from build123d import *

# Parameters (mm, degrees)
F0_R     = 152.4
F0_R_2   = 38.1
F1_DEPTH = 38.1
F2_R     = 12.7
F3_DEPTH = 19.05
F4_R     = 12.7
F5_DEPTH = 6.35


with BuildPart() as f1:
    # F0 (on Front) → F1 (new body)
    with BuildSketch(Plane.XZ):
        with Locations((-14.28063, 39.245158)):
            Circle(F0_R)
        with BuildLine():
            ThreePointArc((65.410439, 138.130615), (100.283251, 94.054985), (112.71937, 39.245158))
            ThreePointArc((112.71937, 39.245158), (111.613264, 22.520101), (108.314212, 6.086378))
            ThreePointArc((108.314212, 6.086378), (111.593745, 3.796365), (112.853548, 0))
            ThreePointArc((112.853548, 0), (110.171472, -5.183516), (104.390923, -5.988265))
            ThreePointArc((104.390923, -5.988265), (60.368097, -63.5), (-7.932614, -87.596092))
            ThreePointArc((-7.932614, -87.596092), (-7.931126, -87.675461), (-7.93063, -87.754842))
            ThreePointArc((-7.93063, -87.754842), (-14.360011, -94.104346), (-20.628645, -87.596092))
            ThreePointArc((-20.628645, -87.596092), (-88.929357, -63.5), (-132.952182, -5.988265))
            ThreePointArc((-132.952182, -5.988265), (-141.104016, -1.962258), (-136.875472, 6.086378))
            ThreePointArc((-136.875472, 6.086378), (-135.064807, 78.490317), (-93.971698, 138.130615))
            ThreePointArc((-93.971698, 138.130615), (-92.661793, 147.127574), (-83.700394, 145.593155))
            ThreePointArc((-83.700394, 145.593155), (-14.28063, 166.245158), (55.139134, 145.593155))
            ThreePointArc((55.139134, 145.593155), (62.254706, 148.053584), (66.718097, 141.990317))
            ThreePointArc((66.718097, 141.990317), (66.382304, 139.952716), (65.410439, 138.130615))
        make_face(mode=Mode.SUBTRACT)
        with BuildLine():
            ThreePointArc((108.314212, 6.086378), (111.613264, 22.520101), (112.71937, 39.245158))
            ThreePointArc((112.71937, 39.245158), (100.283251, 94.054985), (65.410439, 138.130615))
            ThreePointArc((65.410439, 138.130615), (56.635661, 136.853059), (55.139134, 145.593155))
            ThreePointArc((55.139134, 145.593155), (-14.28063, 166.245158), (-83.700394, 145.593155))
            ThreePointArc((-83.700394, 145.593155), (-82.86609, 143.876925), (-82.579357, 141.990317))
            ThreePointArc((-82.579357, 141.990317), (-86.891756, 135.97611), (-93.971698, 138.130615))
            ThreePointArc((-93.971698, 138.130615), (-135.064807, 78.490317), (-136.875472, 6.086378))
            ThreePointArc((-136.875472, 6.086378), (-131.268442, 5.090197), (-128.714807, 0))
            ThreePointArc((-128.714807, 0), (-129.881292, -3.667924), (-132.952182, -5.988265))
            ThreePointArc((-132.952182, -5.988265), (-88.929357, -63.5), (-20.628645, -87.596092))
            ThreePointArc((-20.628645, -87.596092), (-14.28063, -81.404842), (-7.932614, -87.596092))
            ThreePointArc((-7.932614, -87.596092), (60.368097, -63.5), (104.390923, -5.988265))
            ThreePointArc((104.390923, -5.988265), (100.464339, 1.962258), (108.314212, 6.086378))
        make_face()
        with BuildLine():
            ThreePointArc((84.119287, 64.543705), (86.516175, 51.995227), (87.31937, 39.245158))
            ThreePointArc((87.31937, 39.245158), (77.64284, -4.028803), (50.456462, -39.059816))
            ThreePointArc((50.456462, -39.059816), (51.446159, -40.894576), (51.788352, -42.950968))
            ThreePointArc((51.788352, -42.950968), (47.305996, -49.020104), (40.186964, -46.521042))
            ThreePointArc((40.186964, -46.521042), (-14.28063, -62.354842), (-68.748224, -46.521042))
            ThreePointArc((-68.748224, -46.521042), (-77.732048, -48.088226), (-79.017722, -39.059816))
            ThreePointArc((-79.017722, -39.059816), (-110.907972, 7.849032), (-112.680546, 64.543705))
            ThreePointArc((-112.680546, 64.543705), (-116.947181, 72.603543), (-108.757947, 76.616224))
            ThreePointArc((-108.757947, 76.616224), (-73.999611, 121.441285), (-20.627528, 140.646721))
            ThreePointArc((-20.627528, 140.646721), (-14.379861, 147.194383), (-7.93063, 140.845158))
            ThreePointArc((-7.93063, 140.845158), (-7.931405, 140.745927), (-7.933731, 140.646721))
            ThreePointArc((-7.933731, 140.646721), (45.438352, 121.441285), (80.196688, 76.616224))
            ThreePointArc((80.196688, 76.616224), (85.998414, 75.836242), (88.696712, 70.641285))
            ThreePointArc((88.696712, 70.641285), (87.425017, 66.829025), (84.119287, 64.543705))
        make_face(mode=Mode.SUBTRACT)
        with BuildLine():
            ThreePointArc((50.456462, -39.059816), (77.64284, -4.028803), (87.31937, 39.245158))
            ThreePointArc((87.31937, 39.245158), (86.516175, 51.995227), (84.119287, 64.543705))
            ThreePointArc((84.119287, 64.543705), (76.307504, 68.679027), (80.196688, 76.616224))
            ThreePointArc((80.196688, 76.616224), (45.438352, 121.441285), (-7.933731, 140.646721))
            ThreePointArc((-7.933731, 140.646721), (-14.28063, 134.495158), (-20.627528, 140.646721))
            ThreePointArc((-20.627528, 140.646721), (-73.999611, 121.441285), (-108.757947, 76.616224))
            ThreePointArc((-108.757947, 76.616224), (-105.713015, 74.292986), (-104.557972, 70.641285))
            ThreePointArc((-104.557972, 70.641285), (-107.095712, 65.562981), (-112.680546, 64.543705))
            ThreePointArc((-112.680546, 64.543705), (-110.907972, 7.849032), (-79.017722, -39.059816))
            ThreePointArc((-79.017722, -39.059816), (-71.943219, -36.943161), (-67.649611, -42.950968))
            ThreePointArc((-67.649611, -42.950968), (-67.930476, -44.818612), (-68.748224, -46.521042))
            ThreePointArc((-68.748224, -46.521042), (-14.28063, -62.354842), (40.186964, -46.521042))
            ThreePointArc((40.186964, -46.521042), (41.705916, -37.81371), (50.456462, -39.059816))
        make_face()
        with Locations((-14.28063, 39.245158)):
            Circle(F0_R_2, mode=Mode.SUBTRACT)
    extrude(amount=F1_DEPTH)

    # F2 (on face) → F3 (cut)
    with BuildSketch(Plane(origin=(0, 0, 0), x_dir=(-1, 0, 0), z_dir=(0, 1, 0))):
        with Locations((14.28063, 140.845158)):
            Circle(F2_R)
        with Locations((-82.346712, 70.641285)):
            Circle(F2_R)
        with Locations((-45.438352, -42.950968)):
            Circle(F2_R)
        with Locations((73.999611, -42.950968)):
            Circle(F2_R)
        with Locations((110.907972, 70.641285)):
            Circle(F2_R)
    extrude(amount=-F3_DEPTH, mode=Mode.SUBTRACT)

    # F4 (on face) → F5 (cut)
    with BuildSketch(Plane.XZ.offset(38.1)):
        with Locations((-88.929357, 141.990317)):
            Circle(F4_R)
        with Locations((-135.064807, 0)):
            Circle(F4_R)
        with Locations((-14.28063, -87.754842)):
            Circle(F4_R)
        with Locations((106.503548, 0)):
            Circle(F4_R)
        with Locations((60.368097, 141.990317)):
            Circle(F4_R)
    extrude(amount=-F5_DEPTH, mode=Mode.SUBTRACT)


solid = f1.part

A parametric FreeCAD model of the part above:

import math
import FreeCAD as App
import Part
import Sketcher
Q = App.Units.Quantity

doc = App.newDocument("Part")
body = doc.addObject("PartDesign::Body", "Body")

# Sketch on XZ plane
sketch1 = body.newObject("Sketcher::SketchObject", "Sketch")
sketch1.AttachmentSupport = (doc.getObject("XZ_Plane"), [""])
sketch1.MapMode = "FlatFace"
sketch1.addGeometry(Part.Circle(App.Vector(-14.28063, 39.245158, 0), App.Vector(0, 0, 1), 152.4), False)
sketch1.addGeometry(Part.ArcOfCircle(Part.Circle(App.Vector(-14.28063, -87.754842, 0), App.Vector(0, 0, 1), 6.35), math.radians(178.567453), math.radians(360.000003)), False)
sketch1.addGeometry(Part.ArcOfCircle(Part.Circle(App.Vector(-14.280629, -87.754842, 0), App.Vector(0, 0, 1), 6.35), math.radians(1.432545), math.radians(178.567455)), False)
sketch1.addGeometry(Part.ArcOfCircle(Part.Circle(App.Vector(-14.282606, -87.754839, 0), App.Vector(0, 0, 1), 6.351976), math.radians(-0.000024), math.radians(1.432074)), False)
sketch1.addGeometry(Part.ArcOfCircle(Part.Circle(App.Vector(-73.999612, -42.950968, 0), App.Vector(0, 0, 1), 6.35), math.radians(142.209219), math.radians(325.790788)), False)
sketch1.addGeometry(Part.ArcOfCircle(Part.Circle(App.Vector(-73.999611, -42.950969, 0), App.Vector(0, 0, 1), 6.35), math.radians(0.000008), math.radians(142.209217)), False)
sketch1.addGeometry(Part.ArcOfCircle(Part.Circle(App.Vector(-73.999616, -42.950966, 0), App.Vector(0, 0, 1), 6.350005), math.radians(-34.209209), math.radians(-0.000022)), False)
sketch1.addGeometry(Part.ArcOfCircle(Part.Circle(App.Vector(-135.064807, 0, 0), App.Vector(0, 0, 1), 6.35), math.radians(106.567462), math.radians(289.432544)), False)
sketch1.addGeometry(Part.ArcOfCircle(Part.Circle(App.Vector(-135.064808, -0.000001, 0), App.Vector(0, 0, 1), 6.350001), math.radians(0.000012), math.radians(106.567446)), False)
sketch1.addGeometry(Part.ArcOfCircle(Part.Circle(App.Vector(-135.064809, 0.000002, 0), App.Vector(0, 0, 1), 6.350002), math.radians(-70.567439), math.radians(-0.000014)), False)
sketch1.addGeometry(Part.ArcOfCircle(Part.Circle(App.Vector(45.438352, -42.950968, 0), App.Vector(0, 0, 1), 6.35), math.radians(-145.790791), math.radians(0.000004)), False)
sketch1.addGeometry(Part.ArcOfCircle(Part.Circle(App.Vector(45.438352, -42.950968, 0), App.Vector(0, 0, 1), 6.35), math.radians(37.79078), math.radians(214.209212)), False)
sketch1.addGeometry(Part.ArcOfCircle(Part.Circle(App.Vector(45.438348, -42.95097, 0), App.Vector(0, 0, 1), 6.350004), math.radians(0.000021), math.radians(37.790777)), False)
sketch1.addGeometry(Part.ArcOfCircle(Part.Circle(App.Vector(106.503548, -0.000001, 0), App.Vector(0, 0, 1), 6.35), math.radians(-109.432549), math.radians(0.000005)), False)
sketch1.addGeometry(Part.ArcOfCircle(Part.Circle(App.Vector(106.503548, 0, 0), App.Vector(0, 0, 1), 6.35), math.radians(73.432548), math.radians(250.567455)), False)
sketch1.addGeometry(Part.ArcOfCircle(Part.Circle(App.Vector(106.503545, -0.000002, 0), App.Vector(0, 0, 1), 6.350003), math.radians(0.000016), math.radians(73.43253)), False)
sketch1.addGeometry(Part.ArcOfCircle(Part.Circle(App.Vector(-110.907972, 70.641285, 0), App.Vector(0, 0, 1), 6.35), math.radians(70.209215), math.radians(253.790787)), False)
sketch1.addGeometry(Part.ArcOfCircle(Part.Circle(App.Vector(-110.907973, 70.641284, 0), App.Vector(0, 0, 1), 6.350001), math.radians(0.000006), math.radians(70.209205)), False)
sketch1.addGeometry(Part.ArcOfCircle(Part.Circle(App.Vector(-110.907972, 70.641285, 0), App.Vector(0, 0, 1), 6.35), math.radians(-106.209209), math.radians(-0.000003)), False)
sketch1.addGeometry(Part.Circle(App.Vector(-14.28063, 39.245158, 0), App.Vector(0, 0, 1), 38.1), False)
sketch1.addGeometry(Part.ArcOfCircle(Part.Circle(App.Vector(-88.929357, 141.990316, 0), App.Vector(0, 0, 1), 6.35), math.radians(34.567462), math.radians(217.432544)), False)
sketch1.addGeometry(Part.ArcOfCircle(Part.Circle(App.Vector(-88.929359, 141.990316, 0), App.Vector(0, 0, 1), 6.350002), math.radians(0.000011), math.radians(34.567453)), False)
sketch1.addGeometry(Part.ArcOfCircle(Part.Circle(App.Vector(-88.929357, 141.990317, 0), App.Vector(0, 0, 1), 6.35), math.radians(-142.567451), math.radians(0.000003)), False)
sketch1.addGeometry(Part.ArcOfCircle(Part.Circle(App.Vector(-14.278817, 140.845119, 0), App.Vector(0, 0, 1), 6.348187), math.radians(-1.790941), math.radians(0.00035)), False)
sketch1.addGeometry(Part.ArcOfCircle(Part.Circle(App.Vector(-14.280629, 140.845158, 0), App.Vector(0, 0, 1), 6.35), math.radians(-178.209221), math.radians(-1.790779)), False)
sketch1.addGeometry(Part.ArcOfCircle(Part.Circle(App.Vector(-14.28063, 140.845159, 0), App.Vector(0, 0, 1), 6.35), math.radians(-0.000006), math.radians(181.790787)), False)
sketch1.addGeometry(Part.ArcOfCircle(Part.Circle(App.Vector(82.346714, 70.641283, 0), App.Vector(0, 0, 1), 6.349998), math.radians(-73.790789), math.radians(0.000015)), False)
sketch1.addGeometry(Part.ArcOfCircle(Part.Circle(App.Vector(82.346713, 70.641285, 0), App.Vector(0, 0, 1), 6.35), math.radians(109.790786), math.radians(286.209213)), False)
sketch1.addGeometry(Part.ArcOfCircle(Part.Circle(App.Vector(82.346713, 70.641286, 0), App.Vector(0, 0, 1), 6.349999), math.radians(-0.000008), math.radians(109.790785)), False)
sketch1.addGeometry(Part.ArcOfCircle(Part.Circle(App.Vector(60.368093, 141.990317, 0), App.Vector(0, 0, 1), 6.350004), math.radians(-37.432522), math.radians(0.000002)), False)
sketch1.addGeometry(Part.ArcOfCircle(Part.Circle(App.Vector(60.368098, 141.990317, 0), App.Vector(0, 0, 1), 6.35), math.radians(145.432549), math.radians(322.56745)), False)
sketch1.addGeometry(Part.ArcOfCircle(Part.Circle(App.Vector(60.368097, 141.990317, 0), App.Vector(0, 0, 1), 6.35), math.radians(-0.000002), math.radians(145.432548)), False)
sketch1.addConstraint(Sketcher.Constraint("Tangent", 1, 1, 2, 2))
sketch1.addConstraint(Sketcher.Constraint("Coincident", 2, 1, 3, 2))
sketch1.addConstraint(Sketcher.Constraint("Tangent", 3, 1, 1, 2))
sketch1.addConstraint(Sketcher.Constraint("Tangent", 4, 1, 5, 2))
sketch1.addConstraint(Sketcher.Constraint("Tangent", 5, 1, 6, 2))
sketch1.addConstraint(Sketcher.Constraint("Tangent", 6, 1, 4, 2))
sketch1.addConstraint(Sketcher.Constraint("Tangent", 7, 1, 8, 2))
sketch1.addConstraint(Sketcher.Constraint("Tangent", 8, 1, 9, 2))
sketch1.addConstraint(Sketcher.Constraint("Tangent", 9, 1, 7, 2))
sketch1.addConstraint(Sketcher.Constraint("Tangent", 10, 1, 11, 2))
sketch1.addConstraint(Sketcher.Constraint("Tangent", 11, 1, 12, 2))
sketch1.addConstraint(Sketcher.Constraint("Tangent", 12, 1, 10, 2))
sketch1.addConstraint(Sketcher.Constraint("Tangent", 13, 1, 14, 2))
sketch1.addConstraint(Sketcher.Constraint("Tangent", 14, 1, 15, 2))
sketch1.addConstraint(Sketcher.Constraint("Tangent", 15, 1, 13, 2))
sketch1.addConstraint(Sketcher.Constraint("Tangent", 16, 1, 17, 2))
sketch1.addConstraint(Sketcher.Constraint("Tangent", 17, 1, 18, 2))
sketch1.addConstraint(Sketcher.Constraint("Tangent", 18, 1, 16, 2))
sketch1.addConstraint(Sketcher.Constraint("Tangent", 20, 1, 21, 2))
sketch1.addConstraint(Sketcher.Constraint("Tangent", 21, 1, 22, 2))
sketch1.addConstraint(Sketcher.Constraint("Tangent", 22, 1, 20, 2))
sketch1.addConstraint(Sketcher.Constraint("Coincident", 23, 1, 24, 2))
sketch1.addConstraint(Sketcher.Constraint("Tangent", 24, 1, 25, 2))
sketch1.addConstraint(Sketcher.Constraint("Coincident", 25, 1, 23, 2))
sketch1.addConstraint(Sketcher.Constraint("Tangent", 26, 1, 27, 2))
sketch1.addConstraint(Sketcher.Constraint("Tangent", 27, 1, 28, 2))
sketch1.addConstraint(Sketcher.Constraint("Tangent", 28, 1, 26, 2))
sketch1.addConstraint(Sketcher.Constraint("Tangent", 29, 1, 30, 2))
sketch1.addConstraint(Sketcher.Constraint("Tangent", 30, 1, 31, 2))
sketch1.addConstraint(Sketcher.Constraint("Tangent", 31, 1, 29, 2))
sketch1.addConstraint(Sketcher.Constraint("Coincident", 19, 3, 0, 3))
sketch1.addConstraint(Sketcher.Constraint("Equal", 2, 4))
sketch1.addConstraint(Sketcher.Constraint("Equal", 5, 7))
sketch1.addConstraint(Sketcher.Constraint("Equal", 8, 10))
sketch1.addConstraint(Sketcher.Constraint("Equal", 11, 13))
sketch1.addConstraint(Sketcher.Constraint("Equal", 14, 16))
sketch1.addConstraint(Sketcher.Constraint("Equal", 18, 20))
sketch1.addConstraint(Sketcher.Constraint("Equal", 22, 24))
sketch1.addConstraint(Sketcher.Constraint("Equal", 24, 25))
sketch1.addConstraint(Sketcher.Constraint("Equal", 25, 26))
sketch1.addConstraint(Sketcher.Constraint("Equal", 21, 29))
sketch1.addConstraint(Sketcher.Constraint("PointOnObject", 7, 3, -1))
sketch1.addConstraint(Sketcher.Constraint("PointOnObject", 13, 3, -1))
sketch1.addConstraint(Sketcher.Constraint("PointOnObject", 8, 1, -1))
sketch1.addConstraint(Sketcher.Constraint("PointOnObject", 15, 1, -1))
sketch1.addConstraint(Sketcher.Constraint("Horizontal", 5, 3, 10, 3))
sketch1.addConstraint(Sketcher.Constraint("Horizontal", 18, 3, 26, 3))
sketch1.addConstraint(Sketcher.Constraint("Horizontal", 22, 3, 29, 3))
sketch1.addConstraint(Sketcher.Constraint("Horizontal", 1, 1, 2, 1))
sketch1.addConstraint(Sketcher.Constraint("Horizontal", 2, 3, 3, 1))
sketch1.addConstraint(Sketcher.Constraint("Horizontal", 11, 3, 5, 1))
sketch1.addConstraint(Sketcher.Constraint("Horizontal", 6, 1, 10, 1))
sketch1.addConstraint(Sketcher.Constraint("Horizontal", 4, 1, 11, 1))
sketch1.addConstraint(Sketcher.Constraint("Horizontal", 5, 1, 12, 1))
sketch1.addConstraint(Sketcher.Constraint("Horizontal", 9, 1, 13, 1))
sketch1.addConstraint(Sketcher.Constraint("Horizontal", 7, 1, 14, 1))
sketch1.addConstraint(Sketcher.Constraint("Horizontal", 28, 3, 17, 1))
sketch1.addConstraint(Sketcher.Constraint("Horizontal", 31, 3, 21, 1))
sketch1.addConstraint(Sketcher.Constraint("Horizontal", 23, 1, 24, 1))
sketch1.addConstraint(Sketcher.Constraint("Horizontal", 24, 3, 25, 1))
sketch1.addConstraint(Sketcher.Constraint("Horizontal", 18, 1, 26, 1))
sketch1.addConstraint(Sketcher.Constraint("Horizontal", 16, 1, 27, 1))
sketch1.addConstraint(Sketcher.Constraint("Horizontal", 17, 1, 28, 1))
sketch1.addConstraint(Sketcher.Constraint("Horizontal", 22, 1, 29, 1))
sketch1.addConstraint(Sketcher.Constraint("Horizontal", 20, 1, 30, 1))
sketch1.addConstraint(Sketcher.Constraint("Horizontal", 21, 1, 31, 1))
sketch1.addConstraint(Sketcher.Constraint("Vertical", 0, 3, 1, 3))
sketch1.addConstraint(Sketcher.Constraint("Vertical", 19, 3, 24, 3))
sketch1.addConstraint(Sketcher.Constraint("Diameter", 0, Q("12 in")))
sketch1.addConstraint(Sketcher.Constraint("Diameter", 19, Q("3 in")))
sketch1.addConstraint(Sketcher.Constraint("Radius", 1, Q("0.25 in")))
sketch1.addConstraint(Sketcher.Constraint("Radius", 3, 6.351976))
sketch1.addConstraint(Sketcher.Constraint("Radius", 23, 6.348187))
sketch1.addConstraint(Sketcher.Constraint("DistanceX", 0, 3, -1, 1, 14.28063))
sketch1.addConstraint(Sketcher.Constraint("DistanceY", -1, 1, 0, 3, 39.245158))
sketch1.addConstraint(Sketcher.Constraint("DistanceY", 3, 3, -1, 1, 87.754839))
sketch1.addConstraint(Sketcher.Constraint("DistanceX", 4, 3, -1, 1, 73.999612))
sketch1.addConstraint(Sketcher.Constraint("DistanceY", 4, 3, -1, 1, 42.950968))
sketch1.addConstraint(Sketcher.Constraint("DistanceX", 8, 3, -1, 1, 135.064808))
sketch1.addConstraint(Sketcher.Constraint("DistanceX", -1, 1, 10, 3, 45.438352))
sketch1.addConstraint(Sketcher.Constraint("DistanceX", -1, 1, 13, 3, 106.503548))
sketch1.addConstraint(Sketcher.Constraint("DistanceX", 16, 3, -1, 1, 110.907972))
sketch1.addConstraint(Sketcher.Constraint("DistanceX", 21, 3, -1, 1, 88.929359))
sketch1.addConstraint(Sketcher.Constraint("DistanceY", -1, 1, 23, 3, 140.845119))
sketch1.addConstraint(Sketcher.Constraint("DistanceY", 1, 1, -1, 1, 87.596092))
sketch1.addConstraint(Sketcher.Constraint("DistanceX", 7, 1, -1, 1, 136.875472))
sketch1.addConstraint(Sketcher.Constraint("DistanceX", 9, 1, -1, 1, 132.952182))
sketch1.addConstraint(Sketcher.Constraint("DistanceX", -1, 1, 11, 1, 50.456462))
sketch1.addConstraint(Sketcher.Constraint("DistanceX", 23, 1, -1, 1, 7.933731))
sketch1.addConstraint(Sketcher.Constraint("DistanceX", -1, 1, 27, 1, 80.196688))
sketch1.addConstraint(Sketcher.Constraint("DistanceX", -1, 1, 28, 1, 88.696712))
sketch1.addConstraint(Sketcher.Constraint("DistanceX", -1, 1, 29, 1, 65.410439))
sketch1.addConstraint(Sketcher.Constraint("DistanceY", -1, 1, 16, 3, 70.641285))
sketch1.addConstraint(Sketcher.Constraint("DistanceY", -1, 1, 20, 3, 141.990316))
sketch1.addConstraint(Sketcher.Constraint("DistanceX", -1, 1, 29, 3, 60.368093))
sketch1.addConstraint(Sketcher.Constraint("DistanceX", 6, 1, -1, 1, 68.748224))
sketch1.addConstraint(Sketcher.Constraint("DistanceX", 18, 1, -1, 1, 112.680546))
sketch1.addConstraint(Sketcher.Constraint("DistanceX", 20, 1, -1, 1, 83.700394))
pad1 = body.newObject("PartDesign::Pad", "Pad")
pad1.Profile = sketch1
pad1.Length = Q("1.5 in")

# Sketch on XZ plane
sketch2 = body.newObject("Sketcher::SketchObject", "Sketch001")
sketch2.AttachmentSupport = (doc.getObject("XZ_Plane"), [""])
sketch2.MapMode = "FlatFace"
sketch2.addGeometry(Part.Circle(App.Vector(-14.28063, 140.845158, 0), App.Vector(0, 0, 1), 12.7), False)
sketch2.addGeometry(Part.Circle(App.Vector(82.346712, 70.641285, 0), App.Vector(0, 0, 1), 12.7), False)
sketch2.addGeometry(Part.Circle(App.Vector(45.438352, -42.950968, 0), App.Vector(0, 0, 1), 12.7), False)
sketch2.addGeometry(Part.Circle(App.Vector(-73.999611, -42.950968, 0), App.Vector(0, 0, 1), 12.7), False)
sketch2.addGeometry(Part.Circle(App.Vector(-110.907972, 70.641285, 0), App.Vector(0, 0, 1), 12.7), False)
sketch2.addConstraint(Sketcher.Constraint("Equal", 0, 1))
sketch2.addConstraint(Sketcher.Constraint("Equal", 1, 2))
sketch2.addConstraint(Sketcher.Constraint("Equal", 2, 3))
sketch2.addConstraint(Sketcher.Constraint("Equal", 3, 4))
sketch2.addConstraint(Sketcher.Constraint("Horizontal", 2, 3, 3, 3))
sketch2.addConstraint(Sketcher.Constraint("Horizontal", 1, 3, 4, 3))
sketch2.addConstraint(Sketcher.Constraint("Diameter", 0, Q("1 in")))
sketch2.addConstraint(Sketcher.Constraint("DistanceX", 0, 3, -1, 1, 14.28063))
sketch2.addConstraint(Sketcher.Constraint("DistanceY", -1, 1, 0, 3, 140.845158))
sketch2.addConstraint(Sketcher.Constraint("DistanceX", -1, 1, 1, 3, 82.346712))
sketch2.addConstraint(Sketcher.Constraint("DistanceY", 2, 3, -1, 1, 42.950968))
sketch2.addConstraint(Sketcher.Constraint("DistanceX", 3, 3, -1, 1, 73.999611))
sketch2.addConstraint(Sketcher.Constraint("DistanceX", 4, 3, -1, 1, 110.907972))
sketch2.addConstraint(Sketcher.Constraint("DistanceX", 2, 3, 1, 3, 36.90836))
sketch2.addConstraint(Sketcher.Constraint("DistanceY", -1, 1, 1, 3, 70.641285))
pocket1 = body.newObject("PartDesign::Pocket", "Pocket")
pocket1.Profile = sketch2
pocket1.Length = Q("0.75 in")
pocket1.Reversed = True

# Sketch on XZ plane
sketch3 = body.newObject("Sketcher::SketchObject", "Sketch002")
sketch3.AttachmentSupport = (doc.getObject("XZ_Plane"), [""])
sketch3.MapMode = "FlatFace"
sketch3.AttachmentOffset = App.Placement(App.Vector(0, 0, 1.5 * 25.4), App.Rotation())
sketch3.addGeometry(Part.Circle(App.Vector(-88.929357, 141.990317, 0), App.Vector(0, 0, 1), 12.7), False)
sketch3.addGeometry(Part.Circle(App.Vector(-135.064807, 0, 0), App.Vector(0, 0, 1), 12.7), False)
sketch3.addGeometry(Part.Circle(App.Vector(-14.28063, -87.754842, 0), App.Vector(0, 0, 1), 12.7), False)
sketch3.addGeometry(Part.Circle(App.Vector(106.503548, 0, 0), App.Vector(0, 0, 1), 12.7), False)
sketch3.addGeometry(Part.Circle(App.Vector(60.368097, 141.990317, 0), App.Vector(0, 0, 1), 12.7), False)
sketch3.addConstraint(Sketcher.Constraint("Equal", 0, 1))
sketch3.addConstraint(Sketcher.Constraint("Equal", 1, 2))
sketch3.addConstraint(Sketcher.Constraint("Equal", 2, 3))
sketch3.addConstraint(Sketcher.Constraint("Equal", 3, 4))
sketch3.addConstraint(Sketcher.Constraint("PointOnObject", 1, 3, -1))
sketch3.addConstraint(Sketcher.Constraint("PointOnObject", 3, 3, -1))
sketch3.addConstraint(Sketcher.Constraint("Horizontal", 0, 3, 4, 3))
sketch3.addConstraint(Sketcher.Constraint("Diameter", 0, Q("1 in")))
sketch3.addConstraint(Sketcher.Constraint("DistanceX", 2, 3, -1, 1, 14.28063))
sketch3.addConstraint(Sketcher.Constraint("DistanceY", 2, 3, -1, 1, 87.754842))
sketch3.addConstraint(Sketcher.Constraint("DistanceX", 1, 3, 0, 3, 46.13545))
sketch3.addConstraint(Sketcher.Constraint("DistanceY", 2, 3, 0, 3, 229.745159))
sketch3.addConstraint(Sketcher.Constraint("DistanceX", 4, 3, 3, 3, 46.135451))
sketch3.addConstraint(Sketcher.Constraint("DistanceX", 0, 3, -1, 1, 88.929357))
sketch3.addConstraint(Sketcher.Constraint("DistanceX", -1, 1, 3, 3, 106.503548))
pocket2 = body.newObject("PartDesign::Pocket", "Pocket001")
pocket2.Profile = sketch3
pocket2.Length = Q("0.25 in")

doc.recompute()
